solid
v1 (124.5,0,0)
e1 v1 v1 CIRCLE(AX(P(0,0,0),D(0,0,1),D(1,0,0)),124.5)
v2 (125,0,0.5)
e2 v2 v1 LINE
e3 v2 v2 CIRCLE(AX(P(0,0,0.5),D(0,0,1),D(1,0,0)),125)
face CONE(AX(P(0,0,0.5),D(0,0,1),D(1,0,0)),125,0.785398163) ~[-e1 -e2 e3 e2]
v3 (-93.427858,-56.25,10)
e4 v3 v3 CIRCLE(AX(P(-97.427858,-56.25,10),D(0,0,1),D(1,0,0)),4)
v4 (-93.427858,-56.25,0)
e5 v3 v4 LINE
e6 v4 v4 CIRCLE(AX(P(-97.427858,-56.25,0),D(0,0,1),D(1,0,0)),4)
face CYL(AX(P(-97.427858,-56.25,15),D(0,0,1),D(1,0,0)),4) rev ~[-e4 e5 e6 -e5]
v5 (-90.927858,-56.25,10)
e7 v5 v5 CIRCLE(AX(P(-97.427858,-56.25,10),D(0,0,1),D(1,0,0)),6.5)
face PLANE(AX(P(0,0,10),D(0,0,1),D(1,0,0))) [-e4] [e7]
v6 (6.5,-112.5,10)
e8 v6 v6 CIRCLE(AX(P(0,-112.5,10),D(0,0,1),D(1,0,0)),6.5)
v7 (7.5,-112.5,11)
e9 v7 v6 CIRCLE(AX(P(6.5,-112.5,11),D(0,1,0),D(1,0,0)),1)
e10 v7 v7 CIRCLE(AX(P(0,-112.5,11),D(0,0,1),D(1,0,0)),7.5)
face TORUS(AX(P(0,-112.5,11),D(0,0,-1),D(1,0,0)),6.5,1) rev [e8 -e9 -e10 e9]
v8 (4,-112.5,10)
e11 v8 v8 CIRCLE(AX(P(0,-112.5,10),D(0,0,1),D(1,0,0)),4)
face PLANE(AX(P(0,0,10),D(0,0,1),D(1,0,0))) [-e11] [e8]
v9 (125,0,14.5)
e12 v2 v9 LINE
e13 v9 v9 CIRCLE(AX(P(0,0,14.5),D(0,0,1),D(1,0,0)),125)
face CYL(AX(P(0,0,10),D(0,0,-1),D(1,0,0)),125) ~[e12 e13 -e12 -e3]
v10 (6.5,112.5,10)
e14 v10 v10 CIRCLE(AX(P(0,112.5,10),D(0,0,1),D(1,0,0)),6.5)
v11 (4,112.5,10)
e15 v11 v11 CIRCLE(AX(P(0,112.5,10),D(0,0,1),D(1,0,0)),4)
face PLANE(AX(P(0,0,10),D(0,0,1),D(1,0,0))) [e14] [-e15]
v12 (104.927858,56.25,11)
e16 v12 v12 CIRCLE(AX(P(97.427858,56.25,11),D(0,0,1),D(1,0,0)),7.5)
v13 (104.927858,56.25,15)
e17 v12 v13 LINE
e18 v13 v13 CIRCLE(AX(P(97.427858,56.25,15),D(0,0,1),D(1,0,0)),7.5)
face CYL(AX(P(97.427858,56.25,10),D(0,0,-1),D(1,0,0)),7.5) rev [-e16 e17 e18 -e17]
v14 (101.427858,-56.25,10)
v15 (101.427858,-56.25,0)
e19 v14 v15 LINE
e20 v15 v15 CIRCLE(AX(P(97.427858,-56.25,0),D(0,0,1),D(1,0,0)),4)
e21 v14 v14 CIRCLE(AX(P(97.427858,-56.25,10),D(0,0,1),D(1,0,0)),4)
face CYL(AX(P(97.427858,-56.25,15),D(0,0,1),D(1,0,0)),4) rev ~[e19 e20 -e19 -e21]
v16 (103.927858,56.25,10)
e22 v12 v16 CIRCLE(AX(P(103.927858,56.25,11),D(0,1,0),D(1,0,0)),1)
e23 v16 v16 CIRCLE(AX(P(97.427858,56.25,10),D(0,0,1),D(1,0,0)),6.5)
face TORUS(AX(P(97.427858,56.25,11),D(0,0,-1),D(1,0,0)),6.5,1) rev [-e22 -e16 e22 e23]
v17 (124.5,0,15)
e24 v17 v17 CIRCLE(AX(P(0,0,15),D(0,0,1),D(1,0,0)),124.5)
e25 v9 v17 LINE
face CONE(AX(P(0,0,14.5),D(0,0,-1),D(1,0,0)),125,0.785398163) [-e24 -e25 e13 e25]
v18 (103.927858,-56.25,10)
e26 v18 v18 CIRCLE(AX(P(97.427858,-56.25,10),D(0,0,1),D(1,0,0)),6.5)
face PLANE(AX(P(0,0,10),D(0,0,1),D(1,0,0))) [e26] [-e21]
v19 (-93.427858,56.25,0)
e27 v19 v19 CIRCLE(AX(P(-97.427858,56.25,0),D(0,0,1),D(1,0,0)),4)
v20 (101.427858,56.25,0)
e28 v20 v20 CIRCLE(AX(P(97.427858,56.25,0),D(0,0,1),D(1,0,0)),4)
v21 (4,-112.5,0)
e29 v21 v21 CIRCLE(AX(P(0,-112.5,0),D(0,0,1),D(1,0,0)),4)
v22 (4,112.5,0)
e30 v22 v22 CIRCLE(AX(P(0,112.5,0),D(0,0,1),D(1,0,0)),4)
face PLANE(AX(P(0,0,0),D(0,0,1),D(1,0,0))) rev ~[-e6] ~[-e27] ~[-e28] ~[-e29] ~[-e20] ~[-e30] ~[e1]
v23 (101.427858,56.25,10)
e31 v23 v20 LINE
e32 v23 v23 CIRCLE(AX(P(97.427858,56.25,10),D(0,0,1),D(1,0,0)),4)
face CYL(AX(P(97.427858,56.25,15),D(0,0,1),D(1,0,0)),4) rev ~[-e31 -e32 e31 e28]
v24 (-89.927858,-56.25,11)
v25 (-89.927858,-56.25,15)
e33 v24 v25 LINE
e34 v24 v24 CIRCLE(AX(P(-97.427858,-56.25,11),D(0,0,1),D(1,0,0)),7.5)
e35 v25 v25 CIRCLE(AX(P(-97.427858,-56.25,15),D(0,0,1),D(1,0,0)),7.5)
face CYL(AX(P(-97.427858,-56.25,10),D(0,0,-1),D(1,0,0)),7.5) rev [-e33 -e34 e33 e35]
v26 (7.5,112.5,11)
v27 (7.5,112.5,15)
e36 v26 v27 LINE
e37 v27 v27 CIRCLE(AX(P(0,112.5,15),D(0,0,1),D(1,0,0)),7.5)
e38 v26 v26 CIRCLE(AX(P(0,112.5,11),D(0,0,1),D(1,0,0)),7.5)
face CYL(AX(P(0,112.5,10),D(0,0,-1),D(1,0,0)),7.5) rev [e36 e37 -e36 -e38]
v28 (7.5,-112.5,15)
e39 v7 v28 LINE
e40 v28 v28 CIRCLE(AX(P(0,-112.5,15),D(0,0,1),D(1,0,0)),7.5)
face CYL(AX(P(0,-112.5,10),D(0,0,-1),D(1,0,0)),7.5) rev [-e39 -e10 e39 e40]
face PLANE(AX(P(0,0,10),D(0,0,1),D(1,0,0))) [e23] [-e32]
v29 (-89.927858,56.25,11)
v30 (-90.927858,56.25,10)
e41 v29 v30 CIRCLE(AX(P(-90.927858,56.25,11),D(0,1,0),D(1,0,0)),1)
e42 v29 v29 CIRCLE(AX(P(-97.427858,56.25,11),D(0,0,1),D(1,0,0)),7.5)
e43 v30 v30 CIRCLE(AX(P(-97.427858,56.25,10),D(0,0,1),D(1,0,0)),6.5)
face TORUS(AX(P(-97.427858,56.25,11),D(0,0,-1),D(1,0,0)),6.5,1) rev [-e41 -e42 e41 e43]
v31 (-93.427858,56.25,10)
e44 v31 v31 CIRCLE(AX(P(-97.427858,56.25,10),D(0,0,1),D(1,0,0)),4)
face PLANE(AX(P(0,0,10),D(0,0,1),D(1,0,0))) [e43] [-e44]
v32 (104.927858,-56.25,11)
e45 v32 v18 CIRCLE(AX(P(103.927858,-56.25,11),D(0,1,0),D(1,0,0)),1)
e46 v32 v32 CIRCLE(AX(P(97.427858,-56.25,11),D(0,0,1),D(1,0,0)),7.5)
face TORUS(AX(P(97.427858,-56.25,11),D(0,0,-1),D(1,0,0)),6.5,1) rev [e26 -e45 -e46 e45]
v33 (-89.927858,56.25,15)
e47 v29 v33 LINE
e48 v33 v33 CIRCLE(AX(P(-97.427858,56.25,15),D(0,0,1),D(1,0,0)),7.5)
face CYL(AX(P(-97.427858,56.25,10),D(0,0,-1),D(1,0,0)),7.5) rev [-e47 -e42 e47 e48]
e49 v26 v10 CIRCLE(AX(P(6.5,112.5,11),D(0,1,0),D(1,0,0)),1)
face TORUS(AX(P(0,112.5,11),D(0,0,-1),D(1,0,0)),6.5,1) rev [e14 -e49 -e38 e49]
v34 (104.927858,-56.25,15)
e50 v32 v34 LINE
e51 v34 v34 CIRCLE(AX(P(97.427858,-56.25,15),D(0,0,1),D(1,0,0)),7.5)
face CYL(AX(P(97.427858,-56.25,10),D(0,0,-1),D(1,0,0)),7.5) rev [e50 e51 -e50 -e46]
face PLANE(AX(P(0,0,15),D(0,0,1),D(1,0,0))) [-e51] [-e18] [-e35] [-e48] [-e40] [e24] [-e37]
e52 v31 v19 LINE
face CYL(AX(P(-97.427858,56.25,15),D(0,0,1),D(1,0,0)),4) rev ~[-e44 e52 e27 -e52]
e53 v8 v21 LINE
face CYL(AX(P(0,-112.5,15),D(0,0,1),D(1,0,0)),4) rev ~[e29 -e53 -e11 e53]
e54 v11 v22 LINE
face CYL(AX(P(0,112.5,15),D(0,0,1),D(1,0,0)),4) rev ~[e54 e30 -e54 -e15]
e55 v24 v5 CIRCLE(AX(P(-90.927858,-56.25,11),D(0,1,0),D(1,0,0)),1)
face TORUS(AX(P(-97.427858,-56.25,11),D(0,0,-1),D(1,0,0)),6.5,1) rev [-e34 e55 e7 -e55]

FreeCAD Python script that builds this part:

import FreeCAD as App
import Part
import Sketcher
from FreeCAD import Vector


def edges_at(feature, points):
    """Names of the edges that pass closest to the given points."""
    edges = feature.Shape.Edges
    near = lambda p: min(range(len(edges)), key=lambda i: edges[i].distToShape(Part.Vertex(*p))[0])
    return sorted({f"Edge{near(p) + 1}" for p in points})

doc = App.newDocument("Part")
body = doc.addObject("PartDesign::Body", "Body")

# Sketch on XY plane
sketch1 = body.newObject("Sketcher::SketchObject", "Sketch")
sketch1.AttachmentSupport = (doc.getObject("XY_Plane"), [""])
sketch1.MapMode = "FlatFace"
sketch1.addGeometry(Part.Circle(Vector(0, 0, 0), Vector(0, 0, 1), 125), False)
sketch1.addConstraint([
    Sketcher.Constraint("Coincident", 0, 3, -1, 1),
    Sketcher.Constraint("Diameter", 0, 250.0),
])
pad1 = body.newObject("PartDesign::Pad", "Pad")
pad1.Profile = sketch1
pad1.Length = 10

# Sketch on XY plane
sketch2 = body.newObject("Sketcher::SketchObject", "Sketch001")
sketch2.AttachmentSupport = (doc.getObject("XY_Plane"), [""])
sketch2.MapMode = "FlatFace"
sketch2.AttachmentOffset = App.Placement(Vector(0, 0, 10), App.Rotation())
sketch2.addGeometry([
    Part.Circle(Vector(0, 0, 0), Vector(0, 0, 1), 125),  # 0
    Part.Circle(Vector(-97, -56, 0), Vector(0, 0, 1), 8),  # 1
    Part.Circle(Vector(0, -112, 0), Vector(0, 0, 1), 8),  # 2
    Part.Circle(Vector(97, -56, 0), Vector(0, 0, 1), 8),  # 3
    Part.Circle(Vector(-97, 56, 0), Vector(0, 0, 1), 8),  # 4
    Part.Circle(Vector(97, 56, 0), Vector(0, 0, 1), 8),  # 5
    Part.Circle(Vector(0, 112, 0), Vector(0, 0, 1), 8),  # 6
], False)
sketch2.addConstraint([
    Sketcher.Constraint("Coincident", 0, 3, -1, 1),
    Sketcher.Constraint("Equal", 1, 2),
    Sketcher.Constraint("Equal", 2, 3),
    Sketcher.Constraint("Equal", 3, 4),
    Sketcher.Constraint("Equal", 4, 5),
    Sketcher.Constraint("Equal", 5, 6),
    Sketcher.Constraint("Symmetric", 3, 3, 4, 3, -1, 1),
    Sketcher.Constraint("Symmetric", 1, 3, 5, 3, -1, 1),
    Sketcher.Constraint("Symmetric", 2, 3, 6, 3, -1, 1),
    Sketcher.Constraint("Symmetric", 1, 3, 3, 3, -2),
    Sketcher.Constraint("PointOnObject", 2, 3, -2),
    Sketcher.Constraint("Diameter", 0, 250.0),
    Sketcher.Constraint("Diameter", 1, 15.0),
    Sketcher.Constraint("DistanceY", 2, 3, -1, 1, 112.5),
    Sketcher.Constraint("DistanceY", 1, 3, 4, 3, 112.5),
    Sketcher.Constraint("DistanceX", 1, 3, -1, 1, 97.427858),
])
pad2 = body.newObject("PartDesign::Pad", "Pad001")
pad2.Profile = sketch2
pad2.Length = 5

# Sketch on XY plane
sketch3 = body.newObject("Sketcher::SketchObject", "Sketch002")
sketch3.AttachmentSupport = (doc.getObject("XY_Plane"), [""])
sketch3.MapMode = "FlatFace"
sketch3.AttachmentOffset = App.Placement(Vector(0, 0, 15), App.Rotation())
sketch3.addGeometry([
    Part.Circle(Vector(-97.4, 56.2, 0), Vector(0, 0, 1), 4),  # 0
    Part.Circle(Vector(0, 112.5, 0), Vector(0, 0, 1), 4),  # 1
    Part.Circle(Vector(97.4, 56.2, 0), Vector(0, 0, 1), 4),  # 2
    Part.Circle(Vector(97.4, -56.2, 0), Vector(0, 0, 1), 4),  # 3
    Part.Circle(Vector(0, -112.5, 0), Vector(0, 0, 1), 4),  # 4
    Part.Circle(Vector(-97.4, -56.2, 0), Vector(0, 0, 1), 4),  # 5
], False)
sketch3.addConstraint([
    Sketcher.Constraint("Equal", 0, 1),
    Sketcher.Constraint("Equal", 1, 2),
    Sketcher.Constraint("Equal", 2, 3),
    Sketcher.Constraint("Equal", 3, 4),
    Sketcher.Constraint("Equal", 4, 5),
    Sketcher.Constraint("Symmetric", 0, 3, 3, 3, -1, 1),
    Sketcher.Constraint("Symmetric", 1, 3, 4, 3, -1, 1),
    Sketcher.Constraint("Symmetric", 2, 3, 5, 3, -1, 1),
    Sketcher.Constraint("Symmetric", 0, 3, 2, 3, -2),
    Sketcher.Constraint("PointOnObject", 1, 3, -2),
    Sketcher.Constraint("Diameter", 0, 8.0),
    Sketcher.Constraint("DistanceY", 4, 3, 1, 3, 225.0),
    Sketcher.Constraint("DistanceY", 3, 3, 2, 3, 112.5),
    Sketcher.Constraint("DistanceX", 0, 3, -1, 1, 97.427858),
])
pocket1 = body.newObject("PartDesign::Pocket", "Pocket")
pocket1.Profile = sketch3
pocket1.Type = "ThroughAll"
doc.recompute()

chamfer = body.newObject("PartDesign::Chamfer", "Chamfer")
chamfer.Base = (pocket1, edges_at(pocket1, [(-125, 0, 0), (125, 0, 7.5), (-125, 0, 15)]))
chamfer.Size = 0.5
doc.recompute()

fillet = body.newObject("PartDesign::Fillet", "Fillet")
fillet.Base = (chamfer, edges_at(chamfer, [
    (-104.928, 56.25, 10),
    (-7.5, 112.5, 10),
    (89.928, 56.25, 10),
    (89.928, -56.25, 10),
    (-7.5, -112.5, 10),
    (-104.928, -56.25, 10),
]))
fillet.Radius = 1

doc.recompute()
